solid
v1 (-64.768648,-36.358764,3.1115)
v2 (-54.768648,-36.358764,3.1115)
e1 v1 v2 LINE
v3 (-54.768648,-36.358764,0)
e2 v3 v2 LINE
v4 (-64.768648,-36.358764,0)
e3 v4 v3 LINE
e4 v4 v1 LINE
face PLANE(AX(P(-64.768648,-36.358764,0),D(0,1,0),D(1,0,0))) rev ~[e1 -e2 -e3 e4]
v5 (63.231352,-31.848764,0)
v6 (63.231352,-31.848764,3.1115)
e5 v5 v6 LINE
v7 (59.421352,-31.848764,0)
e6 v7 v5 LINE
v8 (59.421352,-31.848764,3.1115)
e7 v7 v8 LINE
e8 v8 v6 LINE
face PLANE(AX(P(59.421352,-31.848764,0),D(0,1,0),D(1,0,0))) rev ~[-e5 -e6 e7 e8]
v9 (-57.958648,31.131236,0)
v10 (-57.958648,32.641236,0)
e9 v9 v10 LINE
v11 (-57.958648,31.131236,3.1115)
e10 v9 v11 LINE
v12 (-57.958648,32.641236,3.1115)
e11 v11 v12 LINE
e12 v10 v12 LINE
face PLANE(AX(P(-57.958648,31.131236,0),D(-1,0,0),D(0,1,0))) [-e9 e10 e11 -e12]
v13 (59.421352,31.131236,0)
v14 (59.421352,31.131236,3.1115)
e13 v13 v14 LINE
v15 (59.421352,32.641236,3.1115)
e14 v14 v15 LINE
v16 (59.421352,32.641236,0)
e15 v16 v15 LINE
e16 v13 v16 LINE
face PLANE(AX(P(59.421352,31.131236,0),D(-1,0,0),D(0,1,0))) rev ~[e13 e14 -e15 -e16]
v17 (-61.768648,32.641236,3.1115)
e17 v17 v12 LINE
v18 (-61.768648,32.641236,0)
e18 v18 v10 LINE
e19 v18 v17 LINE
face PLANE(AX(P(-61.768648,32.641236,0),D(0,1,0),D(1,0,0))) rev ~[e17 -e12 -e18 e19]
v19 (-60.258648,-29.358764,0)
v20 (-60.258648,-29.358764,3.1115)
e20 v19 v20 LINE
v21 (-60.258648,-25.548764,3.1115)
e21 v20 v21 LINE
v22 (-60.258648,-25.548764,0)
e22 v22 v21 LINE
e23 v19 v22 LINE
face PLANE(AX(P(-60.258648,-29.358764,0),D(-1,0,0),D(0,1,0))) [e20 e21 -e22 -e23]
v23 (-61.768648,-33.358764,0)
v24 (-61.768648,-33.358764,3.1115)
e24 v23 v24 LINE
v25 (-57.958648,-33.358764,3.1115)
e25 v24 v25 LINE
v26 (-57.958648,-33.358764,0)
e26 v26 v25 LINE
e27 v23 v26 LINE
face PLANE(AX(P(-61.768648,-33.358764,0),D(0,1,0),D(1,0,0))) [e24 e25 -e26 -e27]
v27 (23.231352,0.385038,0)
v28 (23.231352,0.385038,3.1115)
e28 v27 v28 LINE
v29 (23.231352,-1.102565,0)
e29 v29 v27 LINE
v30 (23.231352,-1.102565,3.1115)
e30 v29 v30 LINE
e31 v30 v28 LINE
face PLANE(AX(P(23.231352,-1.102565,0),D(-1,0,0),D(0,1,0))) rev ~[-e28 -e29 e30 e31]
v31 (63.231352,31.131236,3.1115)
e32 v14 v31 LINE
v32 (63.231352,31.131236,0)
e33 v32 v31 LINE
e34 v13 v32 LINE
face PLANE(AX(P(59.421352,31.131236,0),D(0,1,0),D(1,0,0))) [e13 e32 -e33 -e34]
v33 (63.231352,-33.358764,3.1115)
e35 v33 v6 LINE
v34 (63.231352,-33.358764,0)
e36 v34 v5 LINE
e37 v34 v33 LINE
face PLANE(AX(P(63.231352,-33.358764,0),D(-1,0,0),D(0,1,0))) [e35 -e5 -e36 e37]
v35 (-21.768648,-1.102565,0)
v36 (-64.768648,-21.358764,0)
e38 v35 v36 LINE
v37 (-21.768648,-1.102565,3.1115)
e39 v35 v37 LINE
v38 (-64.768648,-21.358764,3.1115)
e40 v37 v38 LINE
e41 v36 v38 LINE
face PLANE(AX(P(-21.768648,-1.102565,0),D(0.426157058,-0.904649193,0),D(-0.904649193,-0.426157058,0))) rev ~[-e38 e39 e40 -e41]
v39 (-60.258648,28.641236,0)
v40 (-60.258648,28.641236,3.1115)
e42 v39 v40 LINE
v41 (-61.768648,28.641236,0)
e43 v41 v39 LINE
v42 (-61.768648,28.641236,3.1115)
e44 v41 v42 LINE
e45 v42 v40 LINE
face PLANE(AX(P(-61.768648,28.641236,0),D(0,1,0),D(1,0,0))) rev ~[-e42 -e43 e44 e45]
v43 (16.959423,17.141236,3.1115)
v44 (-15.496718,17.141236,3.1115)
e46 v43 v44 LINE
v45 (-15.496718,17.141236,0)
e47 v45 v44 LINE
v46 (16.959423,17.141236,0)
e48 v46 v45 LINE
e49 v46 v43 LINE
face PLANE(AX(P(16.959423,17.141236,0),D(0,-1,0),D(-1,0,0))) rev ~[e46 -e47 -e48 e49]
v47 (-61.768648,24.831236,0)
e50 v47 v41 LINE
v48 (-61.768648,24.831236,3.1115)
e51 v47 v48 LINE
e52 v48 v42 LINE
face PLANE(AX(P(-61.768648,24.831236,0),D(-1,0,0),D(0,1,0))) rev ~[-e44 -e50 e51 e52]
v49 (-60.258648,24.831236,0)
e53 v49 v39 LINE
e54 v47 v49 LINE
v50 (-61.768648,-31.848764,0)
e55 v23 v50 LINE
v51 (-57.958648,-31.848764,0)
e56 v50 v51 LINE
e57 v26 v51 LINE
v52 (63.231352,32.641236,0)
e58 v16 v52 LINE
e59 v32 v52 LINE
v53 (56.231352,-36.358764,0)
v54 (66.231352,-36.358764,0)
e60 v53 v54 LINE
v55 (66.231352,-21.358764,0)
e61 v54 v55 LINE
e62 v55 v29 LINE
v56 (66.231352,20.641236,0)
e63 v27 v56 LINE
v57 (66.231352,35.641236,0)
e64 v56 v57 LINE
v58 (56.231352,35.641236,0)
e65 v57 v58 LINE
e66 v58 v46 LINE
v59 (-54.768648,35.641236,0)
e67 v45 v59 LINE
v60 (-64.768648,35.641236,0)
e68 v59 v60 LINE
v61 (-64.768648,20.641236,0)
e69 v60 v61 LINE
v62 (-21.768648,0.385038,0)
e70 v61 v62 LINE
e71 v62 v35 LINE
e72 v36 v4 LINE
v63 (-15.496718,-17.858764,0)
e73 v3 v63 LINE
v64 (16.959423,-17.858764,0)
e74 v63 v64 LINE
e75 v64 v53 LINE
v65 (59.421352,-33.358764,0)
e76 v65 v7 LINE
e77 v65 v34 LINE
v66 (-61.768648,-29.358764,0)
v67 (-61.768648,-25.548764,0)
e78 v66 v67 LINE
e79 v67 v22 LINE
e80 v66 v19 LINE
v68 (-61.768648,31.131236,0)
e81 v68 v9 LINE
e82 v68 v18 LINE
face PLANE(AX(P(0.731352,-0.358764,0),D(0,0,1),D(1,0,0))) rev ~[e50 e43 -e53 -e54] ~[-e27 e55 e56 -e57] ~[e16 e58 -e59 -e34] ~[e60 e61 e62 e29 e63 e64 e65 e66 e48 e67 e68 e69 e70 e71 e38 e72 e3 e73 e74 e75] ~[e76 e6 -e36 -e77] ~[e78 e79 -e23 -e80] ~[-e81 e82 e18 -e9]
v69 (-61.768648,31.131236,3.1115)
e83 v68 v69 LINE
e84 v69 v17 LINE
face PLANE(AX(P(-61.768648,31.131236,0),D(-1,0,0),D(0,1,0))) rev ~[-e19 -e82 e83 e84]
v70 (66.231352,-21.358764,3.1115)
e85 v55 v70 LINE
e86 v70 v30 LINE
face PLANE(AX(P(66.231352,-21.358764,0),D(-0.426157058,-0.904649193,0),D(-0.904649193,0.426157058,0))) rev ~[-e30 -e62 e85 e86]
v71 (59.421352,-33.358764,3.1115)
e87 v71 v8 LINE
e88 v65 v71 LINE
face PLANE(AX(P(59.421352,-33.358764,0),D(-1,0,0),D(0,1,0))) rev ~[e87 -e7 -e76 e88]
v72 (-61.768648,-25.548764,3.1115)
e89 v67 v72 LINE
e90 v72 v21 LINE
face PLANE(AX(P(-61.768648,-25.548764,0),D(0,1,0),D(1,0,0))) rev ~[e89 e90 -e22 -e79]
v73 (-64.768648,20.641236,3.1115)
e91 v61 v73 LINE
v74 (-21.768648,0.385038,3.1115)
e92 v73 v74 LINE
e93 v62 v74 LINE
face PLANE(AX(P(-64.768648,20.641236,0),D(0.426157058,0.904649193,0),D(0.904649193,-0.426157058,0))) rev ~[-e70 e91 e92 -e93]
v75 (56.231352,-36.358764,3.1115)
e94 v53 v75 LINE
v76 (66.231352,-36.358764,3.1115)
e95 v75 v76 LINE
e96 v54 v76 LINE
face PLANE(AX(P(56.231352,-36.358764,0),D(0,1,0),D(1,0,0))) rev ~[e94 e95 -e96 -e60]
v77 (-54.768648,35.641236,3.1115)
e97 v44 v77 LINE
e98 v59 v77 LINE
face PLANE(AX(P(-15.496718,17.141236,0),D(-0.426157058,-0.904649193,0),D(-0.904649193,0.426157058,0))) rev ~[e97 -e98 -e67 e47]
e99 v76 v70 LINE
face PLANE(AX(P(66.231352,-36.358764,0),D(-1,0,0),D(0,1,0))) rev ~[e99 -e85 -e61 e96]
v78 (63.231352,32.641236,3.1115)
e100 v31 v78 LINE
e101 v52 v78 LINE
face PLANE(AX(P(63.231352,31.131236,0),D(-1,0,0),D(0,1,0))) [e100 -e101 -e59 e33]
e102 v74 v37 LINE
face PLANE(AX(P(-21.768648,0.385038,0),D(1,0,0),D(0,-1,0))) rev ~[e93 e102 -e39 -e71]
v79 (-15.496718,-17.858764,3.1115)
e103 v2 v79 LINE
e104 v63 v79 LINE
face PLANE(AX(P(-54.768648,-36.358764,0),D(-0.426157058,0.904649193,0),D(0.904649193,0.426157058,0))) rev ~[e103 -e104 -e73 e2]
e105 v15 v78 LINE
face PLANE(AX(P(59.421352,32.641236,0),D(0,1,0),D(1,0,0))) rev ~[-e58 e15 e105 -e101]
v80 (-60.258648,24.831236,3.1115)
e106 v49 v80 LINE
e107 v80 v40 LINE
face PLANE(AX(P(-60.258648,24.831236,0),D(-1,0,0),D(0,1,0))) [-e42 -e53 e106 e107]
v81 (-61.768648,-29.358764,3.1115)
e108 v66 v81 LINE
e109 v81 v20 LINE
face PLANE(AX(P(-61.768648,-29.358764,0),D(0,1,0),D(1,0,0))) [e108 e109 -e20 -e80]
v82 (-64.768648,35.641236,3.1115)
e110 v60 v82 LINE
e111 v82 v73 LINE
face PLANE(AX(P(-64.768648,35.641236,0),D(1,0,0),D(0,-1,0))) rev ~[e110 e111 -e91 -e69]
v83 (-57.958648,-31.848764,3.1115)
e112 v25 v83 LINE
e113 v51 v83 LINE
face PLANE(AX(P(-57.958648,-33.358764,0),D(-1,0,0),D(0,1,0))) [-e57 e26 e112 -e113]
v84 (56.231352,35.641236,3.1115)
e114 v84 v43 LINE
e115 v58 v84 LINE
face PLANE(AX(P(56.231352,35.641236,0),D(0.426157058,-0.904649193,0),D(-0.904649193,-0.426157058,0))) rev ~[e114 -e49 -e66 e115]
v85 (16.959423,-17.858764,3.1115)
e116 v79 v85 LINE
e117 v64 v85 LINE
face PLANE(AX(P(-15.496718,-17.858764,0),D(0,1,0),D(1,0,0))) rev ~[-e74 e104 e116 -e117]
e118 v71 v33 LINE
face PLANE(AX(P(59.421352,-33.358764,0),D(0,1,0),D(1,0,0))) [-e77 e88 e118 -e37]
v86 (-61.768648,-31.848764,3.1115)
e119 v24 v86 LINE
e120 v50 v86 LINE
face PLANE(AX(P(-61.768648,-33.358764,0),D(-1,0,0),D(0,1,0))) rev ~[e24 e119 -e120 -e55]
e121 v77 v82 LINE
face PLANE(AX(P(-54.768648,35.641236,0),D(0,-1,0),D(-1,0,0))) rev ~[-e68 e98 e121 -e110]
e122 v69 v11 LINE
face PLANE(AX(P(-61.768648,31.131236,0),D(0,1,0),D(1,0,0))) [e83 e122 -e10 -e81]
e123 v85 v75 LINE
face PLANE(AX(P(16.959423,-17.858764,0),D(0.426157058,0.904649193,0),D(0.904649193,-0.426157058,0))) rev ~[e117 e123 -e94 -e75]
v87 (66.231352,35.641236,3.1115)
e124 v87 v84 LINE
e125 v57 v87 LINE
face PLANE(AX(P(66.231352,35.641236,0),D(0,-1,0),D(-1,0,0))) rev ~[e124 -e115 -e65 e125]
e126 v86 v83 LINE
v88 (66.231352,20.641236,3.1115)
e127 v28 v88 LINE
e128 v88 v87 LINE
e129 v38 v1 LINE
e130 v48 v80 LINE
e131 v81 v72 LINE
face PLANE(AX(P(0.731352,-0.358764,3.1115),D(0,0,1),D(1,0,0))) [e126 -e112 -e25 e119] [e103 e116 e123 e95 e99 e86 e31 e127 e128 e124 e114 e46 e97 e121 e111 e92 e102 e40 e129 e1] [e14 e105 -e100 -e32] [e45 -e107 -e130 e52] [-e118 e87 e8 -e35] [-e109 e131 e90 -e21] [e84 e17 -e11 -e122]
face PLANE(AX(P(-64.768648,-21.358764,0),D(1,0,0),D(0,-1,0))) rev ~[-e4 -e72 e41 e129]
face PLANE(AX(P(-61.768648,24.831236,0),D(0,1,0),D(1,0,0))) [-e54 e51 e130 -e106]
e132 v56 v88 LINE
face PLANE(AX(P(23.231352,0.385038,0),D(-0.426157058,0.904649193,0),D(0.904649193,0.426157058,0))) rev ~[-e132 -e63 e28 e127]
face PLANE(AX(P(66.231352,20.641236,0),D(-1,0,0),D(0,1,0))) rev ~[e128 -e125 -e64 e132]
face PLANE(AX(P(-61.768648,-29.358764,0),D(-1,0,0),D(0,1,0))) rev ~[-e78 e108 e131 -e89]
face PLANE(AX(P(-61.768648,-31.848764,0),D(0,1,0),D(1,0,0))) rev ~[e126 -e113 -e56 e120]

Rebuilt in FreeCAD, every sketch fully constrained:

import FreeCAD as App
import Part
import Sketcher
from FreeCAD import Vector

doc = App.newDocument("Part")
body = doc.addObject("PartDesign::Body", "Body")

# Sketch on XY plane
sketch1 = body.newObject("Sketcher::SketchObject", "Sketch")
sketch1.AttachmentSupport = (doc.getObject("XY_Plane"), [""])
sketch1.MapMode = "FlatFace"
sketch1.addGeometry([
    Part.LineSegment(Vector(-64.768648, -36.358764, 0), Vector(-54.768648, -36.358764, 0)),  # 0
    Part.LineSegment(Vector(-54.768648, -36.358764, 0), Vector(-15.496718, -17.858764, 0)),  # 1
    Part.LineSegment(Vector(-15.496718, -17.858764, 0), Vector(16.959423, -17.858764, 0)),  # 2
    Part.LineSegment(Vector(16.959423, -17.858764, 0), Vector(56.231352, -36.358764, 0)),  # 3
    Part.LineSegment(Vector(56.231352, -36.358764, 0), Vector(66.231352, -36.358764, 0)),  # 4
    Part.LineSegment(Vector(66.231352, -36.358764, 0), Vector(66.231352, -21.358764, 0)),  # 5
    Part.LineSegment(Vector(66.231352, -21.358764, 0), Vector(23.231352, -1.102565, 0)),  # 6
    Part.LineSegment(Vector(23.231352, -1.102565, 0), Vector(23.231352, 0.385038, 0)),  # 7
    Part.LineSegment(Vector(23.231352, 0.385038, 0), Vector(66.231352, 20.641236, 0)),  # 8
    Part.LineSegment(Vector(66.231352, 20.641236, 0), Vector(66.231352, 35.641236, 0)),  # 9
    Part.LineSegment(Vector(66.231352, 35.641236, 0), Vector(56.231352, 35.641236, 0)),  # 10
    Part.LineSegment(Vector(56.231352, 35.641236, 0), Vector(16.959423, 17.141236, 0)),  # 11
    Part.LineSegment(Vector(16.959423, 17.141236, 0), Vector(-15.496718, 17.141236, 0)),  # 12
    Part.LineSegment(Vector(-15.496718, 17.141236, 0), Vector(-54.768648, 35.641236, 0)),  # 13
    Part.LineSegment(Vector(-54.768648, 35.641236, 0), Vector(-64.768648, 35.641236, 0)),  # 14
    Part.LineSegment(Vector(-64.768648, 35.641236, 0), Vector(-64.768648, 20.641236, 0)),  # 15
    Part.LineSegment(Vector(-64.768648, 20.641236, 0), Vector(-21.768648, 0.385038, 0)),  # 16
    Part.LineSegment(Vector(-21.768648, 0.385038, 0), Vector(-21.768648, -1.102565, 0)),  # 17
    Part.LineSegment(Vector(-21.768648, -1.102565, 0), Vector(-64.768648, -21.358764, 0)),  # 18
    Part.LineSegment(Vector(-64.768648, -21.358764, 0), Vector(-64.768648, -36.358764, 0)),  # 19
    Part.LineSegment(Vector(-57.958648, -33.358764, 0), Vector(-61.768648, -33.358764, 0)),  # 20
    Part.LineSegment(Vector(-61.768648, -33.358764, 0), Vector(-61.768648, -31.848764, 0)),  # 21
    Part.LineSegment(Vector(-61.768648, -31.848764, 0), Vector(-57.958648, -31.848764, 0)),  # 22
    Part.LineSegment(Vector(-57.958648, -31.848764, 0), Vector(-57.958648, -33.358764, 0)),  # 23
    Part.LineSegment(Vector(-60.258648, -29.358764, 0), Vector(-61.768648, -29.358764, 0)),  # 24
    Part.LineSegment(Vector(-61.768648, -29.358764, 0), Vector(-61.768648, -25.548764, 0)),  # 25
    Part.LineSegment(Vector(-61.768648, -25.548764, 0), Vector(-60.258648, -25.548764, 0)),  # 26
    Part.LineSegment(Vector(-60.258648, -25.548764, 0), Vector(-60.258648, -29.358764, 0)),  # 27
    Part.LineSegment(Vector(63.231352, -33.358764, 0), Vector(59.421352, -33.358764, 0)),  # 28
    Part.LineSegment(Vector(59.421352, -33.358764, 0), Vector(59.421352, -31.848764, 0)),  # 29
    Part.LineSegment(Vector(59.421352, -31.848764, 0), Vector(63.231352, -31.848764, 0)),  # 30
    Part.LineSegment(Vector(63.231352, -31.848764, 0), Vector(63.231352, -33.358764, 0)),  # 31
    Part.LineSegment(Vector(-60.258648, 24.831236, 0), Vector(-61.768648, 24.831236, 0)),  # 32
    Part.LineSegment(Vector(-61.768648, 24.831236, 0), Vector(-61.768648, 28.641236, 0)),  # 33
    Part.LineSegment(Vector(-61.768648, 28.641236, 0), Vector(-60.258648, 28.641236, 0)),  # 34
    Part.LineSegment(Vector(-60.258648, 28.641236, 0), Vector(-60.258648, 24.831236, 0)),  # 35
    Part.LineSegment(Vector(-57.958648, 31.131236, 0), Vector(-61.768648, 31.131236, 0)),  # 36
    Part.LineSegment(Vector(-61.768648, 31.131236, 0), Vector(-61.768648, 32.641236, 0)),  # 37
    Part.LineSegment(Vector(-61.768648, 32.641236, 0), Vector(-57.958648, 32.641236, 0)),  # 38
    Part.LineSegment(Vector(-57.958648, 32.641236, 0), Vector(-57.958648, 31.131236, 0)),  # 39
    Part.LineSegment(Vector(63.231352, 31.131236, 0), Vector(59.421352, 31.131236, 0)),  # 40
    Part.LineSegment(Vector(59.421352, 31.131236, 0), Vector(59.421352, 32.641236, 0)),  # 41
    Part.LineSegment(Vector(59.421352, 32.641236, 0), Vector(63.231352, 32.641236, 0)),  # 42
    Part.LineSegment(Vector(63.231352, 32.641236, 0), Vector(63.231352, 31.131236, 0)),  # 43
], False)
sketch1.addConstraint([
    Sketcher.Constraint("Coincident", 0, 2, 1, 1),
    Sketcher.Constraint("Coincident", 1, 2, 2, 1),
    Sketcher.Constraint("Coincident", 2, 2, 3, 1),
    Sketcher.Constraint("Coincident", 3, 2, 4, 1),
    Sketcher.Constraint("Coincident", 4, 2, 5, 1),
    Sketcher.Constraint("Coincident", 5, 2, 6, 1),
    Sketcher.Constraint("Coincident", 6, 2, 7, 1),
    Sketcher.Constraint("Coincident", 7, 2, 8, 1),
    Sketcher.Constraint("Coincident", 8, 2, 9, 1),
    Sketcher.Constraint("Coincident", 9, 2, 10, 1),
    Sketcher.Constraint("Coincident", 10, 2, 11, 1),
    Sketcher.Constraint("Coincident", 11, 2, 12, 1),
    Sketcher.Constraint("Coincident", 12, 2, 13, 1),
    Sketcher.Constraint("Coincident", 13, 2, 14, 1),
    Sketcher.Constraint("Coincident", 14, 2, 15, 1),
    Sketcher.Constraint("Coincident", 15, 2, 16, 1),
    Sketcher.Constraint("Coincident", 16, 2, 17, 1),
    Sketcher.Constraint("Coincident", 17, 2, 18, 1),
    Sketcher.Constraint("Coincident", 18, 2, 19, 1),
    Sketcher.Constraint("Coincident", 19, 2, 0, 1),
    Sketcher.Constraint("Coincident", 20, 2, 21, 1),
    Sketcher.Constraint("Coincident", 21, 2, 22, 1),
    Sketcher.Constraint("Coincident", 22, 2, 23, 1),
    Sketcher.Constraint("Coincident", 23, 2, 20, 1),
    Sketcher.Constraint("Coincident", 24, 2, 25, 1),
    Sketcher.Constraint("Coincident", 25, 2, 26, 1),
    Sketcher.Constraint("Coincident", 26, 2, 27, 1),
    Sketcher.Constraint("Coincident", 27, 2, 24, 1),
    Sketcher.Constraint("Coincident", 28, 2, 29, 1),
    Sketcher.Constraint("Coincident", 29, 2, 30, 1),
    Sketcher.Constraint("Coincident", 30, 2, 31, 1),
    Sketcher.Constraint("Coincident", 31, 2, 28, 1),
    Sketcher.Constraint("Coincident", 32, 2, 33, 1),
    Sketcher.Constraint("Coincident", 33, 2, 34, 1),
    Sketcher.Constraint("Coincident", 34, 2, 35, 1),
    Sketcher.Constraint("Coincident", 35, 2, 32, 1),
    Sketcher.Constraint("Coincident", 36, 2, 37, 1),
    Sketcher.Constraint("Coincident", 37, 2, 38, 1),
    Sketcher.Constraint("Coincident", 38, 2, 39, 1),
    Sketcher.Constraint("Coincident", 39, 2, 36, 1),
    Sketcher.Constraint("Coincident", 40, 2, 41, 1),
    Sketcher.Constraint("Coincident", 41, 2, 42, 1),
    Sketcher.Constraint("Coincident", 42, 2, 43, 1),
    Sketcher.Constraint("Coincident", 43, 2, 40, 1),
    Sketcher.Constraint("Horizontal", 0),
    Sketcher.Constraint("Horizontal", 2),
    Sketcher.Constraint("Horizontal", 4),
    Sketcher.Constraint("Vertical", 5),
    Sketcher.Constraint("Vertical", 7),
    Sketcher.Constraint("Vertical", 9),
    Sketcher.Constraint("Horizontal", 10),
    Sketcher.Constraint("Horizontal", 12),
    Sketcher.Constraint("Horizontal", 14),
    Sketcher.Constraint("Vertical", 15),
    Sketcher.Constraint("Vertical", 17),
    Sketcher.Constraint("Vertical", 19),
    Sketcher.Constraint("Horizontal", 20),
    Sketcher.Constraint("Vertical", 21),
    Sketcher.Constraint("Horizontal", 22),
    Sketcher.Constraint("Vertical", 23),
    Sketcher.Constraint("Horizontal", 24),
    Sketcher.Constraint("Vertical", 25),
    Sketcher.Constraint("Horizontal", 26),
    Sketcher.Constraint("Vertical", 27),
    Sketcher.Constraint("Horizontal", 28),
    Sketcher.Constraint("Vertical", 29),
    Sketcher.Constraint("Horizontal", 30),
    Sketcher.Constraint("Vertical", 31),
    Sketcher.Constraint("Horizontal", 32),
    Sketcher.Constraint("Vertical", 33),
    Sketcher.Constraint("Horizontal", 34),
    Sketcher.Constraint("Vertical", 35),
    Sketcher.Constraint("Horizontal", 36),
    Sketcher.Constraint("Vertical", 37),
    Sketcher.Constraint("Horizontal", 38),
    Sketcher.Constraint("Vertical", 39),
    Sketcher.Constraint("Horizontal", 40),
    Sketcher.Constraint("Vertical", 41),
    Sketcher.Constraint("Horizontal", 42),
    Sketcher.Constraint("Vertical", 43),
    Sketcher.Constraint("Parallel", 3, 6),
    Sketcher.Constraint("Parallel", 1, 8),
    Sketcher.Constraint("Parallel", 8, 11),
    Sketcher.Constraint("Parallel", 6, 13),
    Sketcher.Constraint("Parallel", 13, 16),
    Sketcher.Constraint("Parallel", 11, 18),
    Sketcher.Constraint("Horizontal", 0, 2, 3, 2),
    Sketcher.Constraint("Horizontal", 10, 2, 13, 2),
    Sketcher.Constraint("Horizontal", 8, 2, 15, 2),
    Sketcher.Constraint("Horizontal", 7, 2, 16, 2),
    Sketcher.Constraint("Horizontal", 6, 2, 17, 2),
    Sketcher.Constraint("Horizontal", 5, 2, 18, 2),
    Sketcher.Constraint("Horizontal", 23, 2, 28, 2),
    Sketcher.Constraint("Horizontal", 22, 2, 29, 2),
    Sketcher.Constraint("Horizontal", 39, 2, 40, 2),
    Sketcher.Constraint("Horizontal", 38, 2, 41, 2),
    Sketcher.Constraint("Vertical", 5, 2, 8, 2),
    Sketcher.Constraint("Vertical", 3, 2, 10, 2),
    Sketcher.Constraint("Vertical", 2, 2, 11, 2),
    Sketcher.Constraint("Vertical", 1, 2, 12, 2),
    Sketcher.Constraint("Vertical", 0, 2, 13, 2),
    Sketcher.Constraint("Vertical", 21, 2, 24, 2),
    Sketcher.Constraint("Vertical", 25, 2, 32, 2),
    Sketcher.Constraint("Vertical", 27, 2, 34, 2),
    Sketcher.Constraint("Vertical", 33, 2, 36, 2),
    Sketcher.Constraint("Vertical", 23, 2, 38, 2),
    Sketcher.Constraint("Vertical", 29, 2, 40, 2),
    Sketcher.Constraint("Vertical", 31, 2, 42, 2),
    Sketcher.Constraint("Equal", 0, 4),
    Sketcher.Constraint("Equal", 22, 28),
    Sketcher.Constraint("Equal", 5, 9),
    Sketcher.Constraint("Equal", 34, 21),
    Sketcher.Constraint("Equal", 42, 25),
    Sketcher.Constraint("Equal", 27, 33),
    Sketcher.Constraint("Equal", 31, 37),
    Sketcher.Constraint("DistanceX", 0, 1, 0, 2, 10.0),
    Sketcher.Constraint("DistanceY", 5, 1, 5, 2, 15.0),
    Sketcher.Constraint("DistanceX", 0, 2, 3, 2, 111.0),
    Sketcher.Constraint("DistanceX", 6, 2, 5, 2, 43.0),
    Sketcher.Constraint("DistanceY", 5, 2, 8, 2, 42.0),
    Sketcher.Constraint("DistanceY", 2, 2, 11, 2, 35.0),
    Sketcher.Constraint("DistanceX", 19, 2, 20, 2, 3.0),
    Sketcher.Constraint("DistanceY", 19, 2, 20, 2, 3.0),
    Sketcher.Constraint("DistanceY", 20, 2, 24, 2, 4.0),
    Sketcher.Constraint("DistanceX", 30, 2, 4, 2, 3.0),
    Sketcher.Constraint("DistanceY", 33, 2, 14, 2, 7.0),
    Sketcher.Constraint("DistanceY", 33, 2, 37, 2, 4.0),
    Sketcher.Constraint("DistanceX", 20, 2, 20, 1, 3.81),
    Sketcher.Constraint("DistanceX", 24, 2, 24, 1, 1.51),
    Sketcher.Constraint("DistanceX", 2, 1, 2, 2, 32.45614),
    Sketcher.Constraint("DistanceY", -1, 1, 7, 2, 0.385038),
    Sketcher.Constraint("DistanceX", 0, 2, -1, 1, 54.768648),
])
pad1 = body.newObject("PartDesign::Pad", "Pad")
pad1.Profile = sketch1
pad1.Length = 3.1115

doc.recompute()
